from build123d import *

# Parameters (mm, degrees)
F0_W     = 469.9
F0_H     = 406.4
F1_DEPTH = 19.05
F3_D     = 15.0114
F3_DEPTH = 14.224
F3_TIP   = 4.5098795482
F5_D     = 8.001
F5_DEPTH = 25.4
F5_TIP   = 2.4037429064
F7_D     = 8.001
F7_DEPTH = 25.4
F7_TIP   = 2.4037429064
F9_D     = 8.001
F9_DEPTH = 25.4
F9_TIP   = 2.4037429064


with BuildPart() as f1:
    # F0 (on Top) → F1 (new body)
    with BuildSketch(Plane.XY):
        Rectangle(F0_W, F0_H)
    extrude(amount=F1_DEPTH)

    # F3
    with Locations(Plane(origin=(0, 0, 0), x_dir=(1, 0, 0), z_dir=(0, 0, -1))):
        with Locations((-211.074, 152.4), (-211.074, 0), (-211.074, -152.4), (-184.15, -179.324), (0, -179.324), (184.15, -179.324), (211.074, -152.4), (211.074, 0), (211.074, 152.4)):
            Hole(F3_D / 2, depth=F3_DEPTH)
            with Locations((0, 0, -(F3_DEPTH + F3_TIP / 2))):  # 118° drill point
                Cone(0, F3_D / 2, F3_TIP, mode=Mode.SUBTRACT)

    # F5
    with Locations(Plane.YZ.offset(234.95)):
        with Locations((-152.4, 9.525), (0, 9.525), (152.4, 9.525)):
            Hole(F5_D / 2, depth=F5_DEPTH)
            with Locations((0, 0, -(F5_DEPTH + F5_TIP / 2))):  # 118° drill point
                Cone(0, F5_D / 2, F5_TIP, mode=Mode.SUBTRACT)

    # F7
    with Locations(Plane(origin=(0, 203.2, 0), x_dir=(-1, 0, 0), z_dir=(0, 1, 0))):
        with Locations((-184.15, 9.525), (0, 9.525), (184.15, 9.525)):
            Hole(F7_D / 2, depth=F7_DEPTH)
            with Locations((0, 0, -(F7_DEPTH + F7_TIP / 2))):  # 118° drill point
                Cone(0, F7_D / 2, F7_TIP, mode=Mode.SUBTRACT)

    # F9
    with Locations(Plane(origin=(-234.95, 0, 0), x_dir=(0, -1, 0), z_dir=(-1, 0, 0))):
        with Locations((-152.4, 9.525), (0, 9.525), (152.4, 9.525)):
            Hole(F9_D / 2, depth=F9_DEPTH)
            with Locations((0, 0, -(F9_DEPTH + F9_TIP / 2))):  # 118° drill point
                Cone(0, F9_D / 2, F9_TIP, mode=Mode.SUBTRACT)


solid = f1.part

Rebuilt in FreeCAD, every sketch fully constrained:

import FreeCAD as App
import Part
import Sketcher

V = App.Vector
Q = App.Units.Quantity


def add_polygon(sketch, points):
    """Adds a closed chain of lines whose ends are joined by coincident constraints."""
    first, n = sketch.GeometryCount, len(points)
    for a, b in zip(points, points[1:] + points[:1]):
        sketch.addGeometry(Part.LineSegment(App.Vector(*a, 0), App.Vector(*b, 0)), False)
    for i in range(n):
        sketch.addConstraint(Sketcher.Constraint("Coincident", first + i, 2, first + (i + 1) % n, 1))

doc = App.newDocument("Part")
params = doc.addObject("Spreadsheet::Sheet", "Params")
for row, (alias, value) in enumerate([
    ("sketch1_height", "16 in"),
    ("sketch1_width", "18.5 in"),
    ("pad1_length", "0.75 in"),
    ("sketch2_diameter", "0.591 in"),
    ("hole_diameter", "0.591 in"),
    ("hole_depth", "0.56 in"),
    ("sketch3_diameter", "0.315 in"),
    ("hole2_diameter", "0.315 in"),
    ("hole2_depth", "1 in"),
    ("sketch4_diameter", "0.315 in"),
    ("hole3_diameter", "0.315 in"),
    ("hole3_depth", "1 in"),
    ("sketch5_diameter", "0.315 in"),
    ("hole4_diameter", "0.315 in"),
    ("hole4_depth", "1 in"),
], start=1):
    params.set(f"A{row}", alias)
    params.set(f"B{row}", "=" + value)
    params.setAlias(f"B{row}", alias)

body = doc.addObject("PartDesign::Body", "Body")

# Sketch on XY plane
sketch1 = body.newObject("Sketcher::SketchObject", "Sketch")
sketch1.AttachmentSupport = (doc.getObject("XY_Plane"), [""])
sketch1.MapMode = "FlatFace"
add_polygon(sketch1, [(-235, 203), (-235, -203), (235, -203), (235, 203)])  # lines 0-3
sketch1.addConstraint(Sketcher.Constraint("Vertical", 0))
sketch1.addConstraint(Sketcher.Constraint("Horizontal", 1))
sketch1.addConstraint(Sketcher.Constraint("Vertical", 2))
sketch1.addConstraint(Sketcher.Constraint("Horizontal", 3))
sketch1.addConstraint(Sketcher.Constraint("Symmetric", 0, 2, 2, 2, -1, 1))
sketch1.addConstraint(Sketcher.Constraint("DistanceY", 0, 2, 0, 1, Q("16 in")))
sketch1.addConstraint(Sketcher.Constraint("DistanceX", 1, 1, 1, 2, Q("18.5 in")))
sketch1.setExpression("Constraints[9]", "Params.sketch1_height")
sketch1.setExpression("Constraints[10]", "Params.sketch1_width")
pad1 = body.newObject("PartDesign::Pad", "Pad")
pad1.Profile = sketch1
pad1.setExpression("Length", "Params.pad1_length")

# Sketch on XY plane
sketch2 = body.newObject("Sketcher::SketchObject", "Sketch001")
sketch2.AttachmentSupport = (doc.getObject("XY_Plane"), [""])
sketch2.MapMode = "FlatFace"
sketch2.addGeometry(Part.Circle(V(-211, -152, 0), V(0, 0, 1), 8), False)
sketch2.addGeometry(Part.Circle(V(-211, 0, 0), V(0, 0, 1), 8), False)
sketch2.addGeometry(Part.Circle(V(-211, 152, 0), V(0, 0, 1), 8), False)
sketch2.addGeometry(Part.Circle(V(-184, 179, 0), V(0, 0, 1), 8), False)
sketch2.addGeometry(Part.Circle(V(0, 179, 0), V(0, 0, 1), 8), False)
sketch2.addGeometry(Part.Circle(V(184, 179, 0), V(0, 0, 1), 8), False)
sketch2.addGeometry(Part.Circle(V(211, 152, 0), V(0, 0, 1), 8), False)
sketch2.addGeometry(Part.Circle(V(211, 0, 0), V(0, 0, 1), 8), False)
sketch2.addGeometry(Part.Circle(V(211, -152, 0), V(0, 0, 1), 8), False)
sketch2.addConstraint(Sketcher.Constraint("Equal", 0, 1))
sketch2.addConstraint(Sketcher.Constraint("Equal", 1, 2))
sketch2.addConstraint(Sketcher.Constraint("Equal", 2, 3))
sketch2.addConstraint(Sketcher.Constraint("Equal", 3, 4))
sketch2.addConstraint(Sketcher.Constraint("Equal", 4, 5))
sketch2.addConstraint(Sketcher.Constraint("Equal", 5, 6))
sketch2.addConstraint(Sketcher.Constraint("Equal", 6, 7))
sketch2.addConstraint(Sketcher.Constraint("Equal", 7, 8))
sketch2.addConstraint(Sketcher.Constraint("Symmetric", 0, 3, 6, 3, -1, 1))
sketch2.addConstraint(Sketcher.Constraint("Symmetric", 1, 3, 7, 3, -1, 1))
sketch2.addConstraint(Sketcher.Constraint("Symmetric", 2, 3, 8, 3, -1, 1))
sketch2.addConstraint(Sketcher.Constraint("Symmetric", 3, 3, 5, 3, -2))
sketch2.addConstraint(Sketcher.Constraint("Symmetric", 2, 3, 6, 3, -2))
sketch2.addConstraint(Sketcher.Constraint("PointOnObject", 1, 3, -1))
sketch2.addConstraint(Sketcher.Constraint("PointOnObject", 4, 3, -2))
sketch2.addConstraint(Sketcher.Constraint("Horizontal", 3, 3, 4, 3))
sketch2.addConstraint(Sketcher.Constraint("Vertical", 0, 3, 1, 3))
sketch2.addConstraint(Sketcher.Constraint("Diameter", 0, Q("0.591 in")))
sketch2.addConstraint(Sketcher.Constraint("DistanceY", 0, 3, -1, 1, Q("6 in")))
sketch2.addConstraint(Sketcher.Constraint("DistanceX", 3, 3, 5, 3, Q("14.5 in")))
sketch2.addConstraint(Sketcher.Constraint("DistanceX", 0, 3, -1, 1, Q("8.31 in")))
sketch2.addConstraint(Sketcher.Constraint("DistanceY", -1, 1, 3, 3, Q("7.06 in")))
sketch2.setExpression("Constraints[17]", "Params.sketch2_diameter")
doc.recompute()
hole = body.newObject("PartDesign::Hole", "Hole")
hole.Profile = sketch2
hole.ThreadType = "None"
hole.setExpression("Diameter", "Params.hole_diameter")
hole.DepthType = "Dimension"
hole.setExpression("Depth", "Params.hole_depth")
hole.DrillPoint = "Angled"
hole.DrillPointAngle = 118
hole.Reversed = True

# Sketch on YZ plane
sketch3 = body.newObject("Sketcher::SketchObject", "Sketch002")
sketch3.AttachmentSupport = (doc.getObject("YZ_Plane"), [""])
sketch3.MapMode = "FlatFace"
sketch3.AttachmentOffset = App.Placement(V(0, 0, 9.25 * 25.4), App.Rotation())
sketch3.addGeometry(Part.Circle(V(-152.4, 9.5, 0), V(0, 0, 1), 4), False)
sketch3.addGeometry(Part.Circle(V(0, 9.5, 0), V(0, 0, 1), 4), False)
sketch3.addGeometry(Part.Circle(V(152.4, 9.5, 0), V(0, 0, 1), 4), False)
sketch3.addConstraint(Sketcher.Constraint("Equal", 0, 1))
sketch3.addConstraint(Sketcher.Constraint("Equal", 1, 2))
sketch3.addConstraint(Sketcher.Constraint("Symmetric", 0, 3, 2, 3, -2))
sketch3.addConstraint(Sketcher.Constraint("PointOnObject", 1, 3, -2))
sketch3.addConstraint(Sketcher.Constraint("Horizontal", 0, 3, 1, 3))
sketch3.addConstraint(Sketcher.Constraint("Diameter", 0, Q("0.315 in")))
sketch3.addConstraint(Sketcher.Constraint("DistanceX", 0, 3, -1, 1, Q("6 in")))
sketch3.addConstraint(Sketcher.Constraint("DistanceY", -1, 1, 0, 3, Q("0.375 in")))
sketch3.setExpression("Constraints[5]", "Params.sketch3_diameter")
doc.recompute()
hole2 = body.newObject("PartDesign::Hole", "Hole001")
hole2.Profile = sketch3
hole2.ThreadType = "None"
hole2.setExpression("Diameter", "Params.hole2_diameter")
hole2.DepthType = "Dimension"
hole2.setExpression("Depth", "Params.hole2_depth")
hole2.DrillPoint = "Angled"
hole2.DrillPointAngle = 118

# Sketch on XZ plane
sketch4 = body.newObject("Sketcher::SketchObject", "Sketch003")
sketch4.AttachmentSupport = (doc.getObject("XZ_Plane"), [""])
sketch4.MapMode = "FlatFace"
sketch4.AttachmentOffset = App.Placement(V(0, 0, -8 * 25.4), App.Rotation())
sketch4.addGeometry(Part.Circle(V(184.2, 9.5, 0), V(0, 0, 1), 4), False)
sketch4.addGeometry(Part.Circle(V(0, 9.5, 0), V(0, 0, 1), 4), False)
sketch4.addGeometry(Part.Circle(V(-184.2, 9.5, 0), V(0, 0, 1), 4), False)
sketch4.addConstraint(Sketcher.Constraint("Equal", 0, 1))
sketch4.addConstraint(Sketcher.Constraint("Equal", 1, 2))
sketch4.addConstraint(Sketcher.Constraint("Symmetric", 0, 3, 2, 3, -2))
sketch4.addConstraint(Sketcher.Constraint("PointOnObject", 1, 3, -2))
sketch4.addConstraint(Sketcher.Constraint("Horizontal", 0, 3, 1, 3))
sketch4.addConstraint(Sketcher.Constraint("Diameter", 0, Q("0.315 in")))
sketch4.addConstraint(Sketcher.Constraint("DistanceX", 2, 3, 0, 3, Q("14.5 in")))
sketch4.addConstraint(Sketcher.Constraint("DistanceY", -1, 1, 0, 3, Q("0.375 in")))
sketch4.setExpression("Constraints[5]", "Params.sketch4_diameter")
doc.recompute()
hole3 = body.newObject("PartDesign::Hole", "Hole002")
hole3.Profile = sketch4
hole3.ThreadType = "None"
hole3.setExpression("Diameter", "Params.hole3_diameter")
hole3.DepthType = "Dimension"
hole3.setExpression("Depth", "Params.hole3_depth")
hole3.DrillPoint = "Angled"
hole3.DrillPointAngle = 118
hole3.Reversed = True

# Sketch on YZ plane
sketch5 = body.newObject("Sketcher::SketchObject", "Sketch004")
sketch5.AttachmentSupport = (doc.getObject("YZ_Plane"), [""])
sketch5.MapMode = "FlatFace"
sketch5.AttachmentOffset = App.Placement(V(0, 0, -9.25 * 25.4), App.Rotation())
sketch5.addGeometry(Part.Circle(V(152.4, 9.5, 0), V(0, 0, 1), 4), False)
sketch5.addGeometry(Part.Circle(V(0, 9.5, 0), V(0, 0, 1), 4), False)
sketch5.addGeometry(Part.Circle(V(-152.4, 9.5, 0), V(0, 0, 1), 4), False)
sketch5.addConstraint(Sketcher.Constraint("Equal", 0, 1))
sketch5.addConstraint(Sketcher.Constraint("Equal", 1, 2))
sketch5.addConstraint(Sketcher.Constraint("Symmetric", 0, 3, 2, 3, -2))
sketch5.addConstraint(Sketcher.Constraint("PointOnObject", 1, 3, -2))
sketch5.addConstraint(Sketcher.Constraint("Horizontal", 0, 3, 1, 3))
sketch5.addConstraint(Sketcher.Constraint("Diameter", 0, Q("0.315 in")))
sketch5.addConstraint(Sketcher.Constraint("DistanceX", -1, 1, 0, 3, Q("6 in")))
sketch5.addConstraint(Sketcher.Constraint("DistanceY", -1, 1, 0, 3, Q("0.375 in")))
sketch5.setExpression("Constraints[5]", "Params.sketch5_diameter")
doc.recompute()
hole4 = body.newObject("PartDesign::Hole", "Hole003")
hole4.Profile = sketch5
hole4.ThreadType = "None"
hole4.setExpression("Diameter", "Params.hole4_diameter")
hole4.DepthType = "Dimension"
hole4.setExpression("Depth", "Params.hole4_depth")
hole4.DrillPoint = "Angled"
hole4.DrillPointAngle = 118
hole4.Reversed = True

doc.recompute()
